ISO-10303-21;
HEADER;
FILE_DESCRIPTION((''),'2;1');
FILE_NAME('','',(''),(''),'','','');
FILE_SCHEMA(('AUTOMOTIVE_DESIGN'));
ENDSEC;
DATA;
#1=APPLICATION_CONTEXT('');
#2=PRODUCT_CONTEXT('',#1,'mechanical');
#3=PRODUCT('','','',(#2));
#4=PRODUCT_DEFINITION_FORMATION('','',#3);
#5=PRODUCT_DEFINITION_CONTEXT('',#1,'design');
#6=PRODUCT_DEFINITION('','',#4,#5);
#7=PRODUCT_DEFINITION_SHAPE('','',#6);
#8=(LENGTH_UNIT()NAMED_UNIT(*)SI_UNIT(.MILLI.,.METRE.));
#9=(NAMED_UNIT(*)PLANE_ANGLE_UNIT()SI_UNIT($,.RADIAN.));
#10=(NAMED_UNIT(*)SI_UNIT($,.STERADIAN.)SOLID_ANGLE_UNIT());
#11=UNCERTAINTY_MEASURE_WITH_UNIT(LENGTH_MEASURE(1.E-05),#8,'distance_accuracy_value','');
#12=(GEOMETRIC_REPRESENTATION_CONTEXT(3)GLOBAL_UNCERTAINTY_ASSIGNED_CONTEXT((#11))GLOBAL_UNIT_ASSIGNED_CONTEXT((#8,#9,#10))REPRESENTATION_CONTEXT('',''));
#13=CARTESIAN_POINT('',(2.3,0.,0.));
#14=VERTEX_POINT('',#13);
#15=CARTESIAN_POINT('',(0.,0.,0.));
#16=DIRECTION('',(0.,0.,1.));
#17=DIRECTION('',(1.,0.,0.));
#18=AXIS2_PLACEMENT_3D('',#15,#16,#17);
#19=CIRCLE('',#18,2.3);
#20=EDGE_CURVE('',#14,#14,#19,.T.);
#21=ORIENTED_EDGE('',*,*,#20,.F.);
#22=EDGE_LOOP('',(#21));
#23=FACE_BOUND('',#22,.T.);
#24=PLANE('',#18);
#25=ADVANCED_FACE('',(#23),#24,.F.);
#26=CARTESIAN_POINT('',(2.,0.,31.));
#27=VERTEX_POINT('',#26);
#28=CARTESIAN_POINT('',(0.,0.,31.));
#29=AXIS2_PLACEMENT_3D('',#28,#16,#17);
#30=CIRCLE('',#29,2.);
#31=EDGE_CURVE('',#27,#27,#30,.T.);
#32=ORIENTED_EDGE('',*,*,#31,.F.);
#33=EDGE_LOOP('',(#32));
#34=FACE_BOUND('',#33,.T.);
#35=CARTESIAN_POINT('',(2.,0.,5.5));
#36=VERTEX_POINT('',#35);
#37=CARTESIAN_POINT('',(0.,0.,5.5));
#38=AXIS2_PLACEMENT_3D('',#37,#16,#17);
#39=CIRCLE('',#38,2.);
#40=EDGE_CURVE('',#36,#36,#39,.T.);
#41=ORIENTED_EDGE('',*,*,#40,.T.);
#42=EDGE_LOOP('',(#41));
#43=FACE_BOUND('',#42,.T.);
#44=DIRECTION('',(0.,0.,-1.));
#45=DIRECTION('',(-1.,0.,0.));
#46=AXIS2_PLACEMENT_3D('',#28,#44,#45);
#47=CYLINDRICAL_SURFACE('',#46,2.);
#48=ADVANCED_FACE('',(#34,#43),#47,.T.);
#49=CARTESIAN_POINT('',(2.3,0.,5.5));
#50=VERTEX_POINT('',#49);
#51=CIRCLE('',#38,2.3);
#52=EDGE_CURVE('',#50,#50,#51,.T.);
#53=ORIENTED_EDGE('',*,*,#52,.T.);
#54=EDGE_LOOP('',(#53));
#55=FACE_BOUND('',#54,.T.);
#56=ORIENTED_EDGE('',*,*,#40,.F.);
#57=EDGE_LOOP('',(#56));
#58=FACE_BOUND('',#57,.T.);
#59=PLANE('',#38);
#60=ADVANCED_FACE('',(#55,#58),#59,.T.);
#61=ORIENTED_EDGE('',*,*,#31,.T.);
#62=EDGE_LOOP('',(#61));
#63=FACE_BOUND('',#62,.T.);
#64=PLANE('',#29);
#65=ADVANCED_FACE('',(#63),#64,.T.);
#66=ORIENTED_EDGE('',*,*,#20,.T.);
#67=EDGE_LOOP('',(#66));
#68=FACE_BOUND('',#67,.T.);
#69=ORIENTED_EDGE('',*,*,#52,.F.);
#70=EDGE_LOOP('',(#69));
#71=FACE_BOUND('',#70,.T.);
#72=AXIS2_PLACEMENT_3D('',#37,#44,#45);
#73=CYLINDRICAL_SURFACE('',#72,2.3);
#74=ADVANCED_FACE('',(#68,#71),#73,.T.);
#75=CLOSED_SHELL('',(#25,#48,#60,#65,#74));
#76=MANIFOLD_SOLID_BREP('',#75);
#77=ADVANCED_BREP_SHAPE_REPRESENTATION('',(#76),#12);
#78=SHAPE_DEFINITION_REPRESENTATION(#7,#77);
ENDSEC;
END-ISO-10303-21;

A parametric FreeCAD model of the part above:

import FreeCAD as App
import Part
import Sketcher

doc = App.newDocument("Part")
body = doc.addObject("PartDesign::Body", "Body")

sketch1 = body.newObject("Sketcher::SketchObject", "Sketch")
sketch1.AttachmentSupport = (doc.getObject("XY_Plane"), [""])
sketch1.MapMode = "FlatFace"
sketch1.addGeometry(Part.Circle(App.Vector(0, 0, 0), App.Vector(0, 0, 1), 2.3), False)
sketch1.addConstraint([
    Sketcher.Constraint("Coincident", 0, 3, -1, 1),
    Sketcher.Constraint("Diameter", 0, 4.6),
])
pad1 = body.newObject("PartDesign::Pad", "Pad")
pad1.Profile = sketch1
pad1.Length = 5.5

sketch2 = body.newObject("Sketcher::SketchObject", "Sketch001")
sketch2.AttachmentSupport = (doc.getObject("XY_Plane"), [""])
sketch2.MapMode = "FlatFace"
sketch2.AttachmentOffset = App.Placement(App.Vector(0, 0, 5.5), App.Rotation())
sketch2.addGeometry(Part.Circle(App.Vector(0, 0, 0), App.Vector(0, 0, 1), 2), False)
sketch2.addConstraint([
    Sketcher.Constraint("Coincident", 0, 3, -1, 1),
    Sketcher.Constraint("Diameter", 0, 4.0),
])
pad2 = body.newObject("PartDesign::Pad", "Pad001")
pad2.Profile = sketch2
pad2.Length = 25.5

doc.recompute()
